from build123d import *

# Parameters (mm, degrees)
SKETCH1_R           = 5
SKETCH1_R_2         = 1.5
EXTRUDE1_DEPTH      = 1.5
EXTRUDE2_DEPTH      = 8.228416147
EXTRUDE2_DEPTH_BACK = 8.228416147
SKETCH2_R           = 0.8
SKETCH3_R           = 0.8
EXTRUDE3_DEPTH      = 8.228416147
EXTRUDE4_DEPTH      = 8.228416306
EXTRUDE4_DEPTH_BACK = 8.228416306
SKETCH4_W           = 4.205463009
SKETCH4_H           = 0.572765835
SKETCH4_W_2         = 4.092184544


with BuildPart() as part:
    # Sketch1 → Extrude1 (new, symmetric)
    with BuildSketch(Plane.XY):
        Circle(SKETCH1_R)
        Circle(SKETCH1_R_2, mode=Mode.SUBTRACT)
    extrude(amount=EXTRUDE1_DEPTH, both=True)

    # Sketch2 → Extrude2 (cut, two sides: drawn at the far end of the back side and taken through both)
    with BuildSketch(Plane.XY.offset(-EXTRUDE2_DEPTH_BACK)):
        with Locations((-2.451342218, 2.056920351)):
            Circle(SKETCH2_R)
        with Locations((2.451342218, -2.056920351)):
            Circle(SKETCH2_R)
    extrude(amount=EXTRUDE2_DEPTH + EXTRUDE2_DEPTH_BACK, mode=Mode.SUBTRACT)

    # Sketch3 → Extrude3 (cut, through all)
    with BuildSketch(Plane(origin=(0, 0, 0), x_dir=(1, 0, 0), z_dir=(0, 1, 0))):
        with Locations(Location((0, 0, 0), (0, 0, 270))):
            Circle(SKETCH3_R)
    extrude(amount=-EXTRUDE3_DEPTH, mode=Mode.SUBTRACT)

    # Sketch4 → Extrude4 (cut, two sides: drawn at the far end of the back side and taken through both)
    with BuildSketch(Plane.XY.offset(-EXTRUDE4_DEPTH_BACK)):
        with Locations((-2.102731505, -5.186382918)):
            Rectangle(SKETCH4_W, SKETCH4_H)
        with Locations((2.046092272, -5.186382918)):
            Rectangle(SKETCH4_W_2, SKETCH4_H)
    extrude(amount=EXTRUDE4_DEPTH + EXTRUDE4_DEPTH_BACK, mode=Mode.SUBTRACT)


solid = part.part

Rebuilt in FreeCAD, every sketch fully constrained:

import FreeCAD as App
import Part
import Sketcher

V = App.Vector
Q = App.Units.Quantity


def add_polygon(sketch, points):
    """Adds a closed chain of lines whose ends are joined by coincident constraints."""
    first, n = sketch.GeometryCount, len(points)
    for a, b in zip(points, points[1:] + points[:1]):
        sketch.addGeometry(Part.LineSegment(App.Vector(*a, 0), App.Vector(*b, 0)), False)
    for i in range(n):
        sketch.addConstraint(Sketcher.Constraint("Coincident", first + i, 2, first + (i + 1) % n, 1))

doc = App.newDocument("Part")
body = doc.addObject("PartDesign::Body", "Body")

# Sketch on XY plane
sketch1 = body.newObject("Sketcher::SketchObject", "Sketch")
sketch1.AttachmentSupport = (doc.getObject("XY_Plane"), [""])
sketch1.MapMode = "FlatFace"
sketch1.addGeometry([
    Part.Circle(V(0, 0, 0), V(0, 0, 1), 5),
    Part.Circle(V(0, 0, 0), V(0, 0, 1), 1.5),
], False)
sketch1.addConstraint([
    Sketcher.Constraint("Coincident", 0, 3, -1, 1),
    Sketcher.Constraint("Coincident", 1, 3, -1, 1),
    Sketcher.Constraint("Diameter", 0, Q("10 mm")),
    Sketcher.Constraint("Diameter", 1, Q("3 mm")),
])
pad1 = body.newObject("PartDesign::Pad", "Pad")
pad1.Profile = sketch1
pad1.Length = 3
pad1.Midplane = True

# Sketch on XY plane
sketch2 = body.newObject("Sketcher::SketchObject", "Sketch001")
sketch2.AttachmentSupport = (doc.getObject("XY_Plane"), [""])
sketch2.MapMode = "FlatFace"
sketch2.addGeometry([
    Part.Circle(V(-2.451342, 2.05692, 0), V(0, 0, 1), 0.8),
    Part.Circle(V(2.451342, -2.05692, 0), V(0, 0, 1), 0.8),
], False)
sketch2.addConstraint([
    Sketcher.Constraint("Equal", 0, 1),
    Sketcher.Constraint("Symmetric", 0, 3, 1, 3, -1, 1),
    Sketcher.Constraint("Diameter", 0, Q("1.6 mm")),
    Sketcher.Constraint("DistanceY", -1, 1, 0, 3, Q("2.05692 mm")),
    Sketcher.Constraint("DistanceX", 0, 3, -1, 1, Q("2.451342 mm")),
])
pocket1 = body.newObject("PartDesign::Pocket", "Pocket")
pocket1.Profile = sketch2
pocket1.Type = "ThroughAll"
pocket1.Midplane = True

# Sketch on XZ plane
sketch3 = body.newObject("Sketcher::SketchObject", "Sketch002")
sketch3.AttachmentSupport = (doc.getObject("XZ_Plane"), [""])
sketch3.MapMode = "FlatFace"
sketch3.addGeometry(Part.Circle(V(0, 0, 0), V(0, 0, 1), 0.8), False)
sketch3.addConstraint([
    Sketcher.Constraint("Coincident", 0, 3, -1, 1),
    Sketcher.Constraint("Diameter", 0, Q("1.6 mm")),
])
pocket2 = body.newObject("PartDesign::Pocket", "Pocket001")
pocket2.Profile = sketch3
pocket2.Type = "ThroughAll"
pocket2.Reversed = True

# Sketch on XY plane
sketch4 = body.newObject("Sketcher::SketchObject", "Sketch003")
sketch4.AttachmentSupport = (doc.getObject("XY_Plane"), [""])
sketch4.MapMode = "FlatFace"
add_polygon(sketch4, [(-4.205463, -4.9), (-4.205463, -5.472766), (4.092185, -5.472766), (4.092185, -4.9)])  # lines 0-3
sketch4.addConstraint([
    Sketcher.Constraint("Vertical", 0),
    Sketcher.Constraint("Horizontal", 1),
    Sketcher.Constraint("Vertical", 2),
    Sketcher.Constraint("Horizontal", 3),
    Sketcher.Constraint("DistanceY", 2, 2, -1, 1, Q("4.9 mm")),
    Sketcher.Constraint("DistanceX", 1, 1, 1, 2, Q("8.297648 mm")),
    Sketcher.Constraint("DistanceY", 0, 2, 0, 1, Q("0.572766 mm")),
    Sketcher.Constraint("DistanceX", 0, 2, -1, 1, Q("4.205463 mm")),
])
pocket3 = body.newObject("PartDesign::Pocket", "Pocket002")
pocket3.Profile = sketch4
pocket3.Type = "ThroughAll"
pocket3.Midplane = True

doc.recompute()
